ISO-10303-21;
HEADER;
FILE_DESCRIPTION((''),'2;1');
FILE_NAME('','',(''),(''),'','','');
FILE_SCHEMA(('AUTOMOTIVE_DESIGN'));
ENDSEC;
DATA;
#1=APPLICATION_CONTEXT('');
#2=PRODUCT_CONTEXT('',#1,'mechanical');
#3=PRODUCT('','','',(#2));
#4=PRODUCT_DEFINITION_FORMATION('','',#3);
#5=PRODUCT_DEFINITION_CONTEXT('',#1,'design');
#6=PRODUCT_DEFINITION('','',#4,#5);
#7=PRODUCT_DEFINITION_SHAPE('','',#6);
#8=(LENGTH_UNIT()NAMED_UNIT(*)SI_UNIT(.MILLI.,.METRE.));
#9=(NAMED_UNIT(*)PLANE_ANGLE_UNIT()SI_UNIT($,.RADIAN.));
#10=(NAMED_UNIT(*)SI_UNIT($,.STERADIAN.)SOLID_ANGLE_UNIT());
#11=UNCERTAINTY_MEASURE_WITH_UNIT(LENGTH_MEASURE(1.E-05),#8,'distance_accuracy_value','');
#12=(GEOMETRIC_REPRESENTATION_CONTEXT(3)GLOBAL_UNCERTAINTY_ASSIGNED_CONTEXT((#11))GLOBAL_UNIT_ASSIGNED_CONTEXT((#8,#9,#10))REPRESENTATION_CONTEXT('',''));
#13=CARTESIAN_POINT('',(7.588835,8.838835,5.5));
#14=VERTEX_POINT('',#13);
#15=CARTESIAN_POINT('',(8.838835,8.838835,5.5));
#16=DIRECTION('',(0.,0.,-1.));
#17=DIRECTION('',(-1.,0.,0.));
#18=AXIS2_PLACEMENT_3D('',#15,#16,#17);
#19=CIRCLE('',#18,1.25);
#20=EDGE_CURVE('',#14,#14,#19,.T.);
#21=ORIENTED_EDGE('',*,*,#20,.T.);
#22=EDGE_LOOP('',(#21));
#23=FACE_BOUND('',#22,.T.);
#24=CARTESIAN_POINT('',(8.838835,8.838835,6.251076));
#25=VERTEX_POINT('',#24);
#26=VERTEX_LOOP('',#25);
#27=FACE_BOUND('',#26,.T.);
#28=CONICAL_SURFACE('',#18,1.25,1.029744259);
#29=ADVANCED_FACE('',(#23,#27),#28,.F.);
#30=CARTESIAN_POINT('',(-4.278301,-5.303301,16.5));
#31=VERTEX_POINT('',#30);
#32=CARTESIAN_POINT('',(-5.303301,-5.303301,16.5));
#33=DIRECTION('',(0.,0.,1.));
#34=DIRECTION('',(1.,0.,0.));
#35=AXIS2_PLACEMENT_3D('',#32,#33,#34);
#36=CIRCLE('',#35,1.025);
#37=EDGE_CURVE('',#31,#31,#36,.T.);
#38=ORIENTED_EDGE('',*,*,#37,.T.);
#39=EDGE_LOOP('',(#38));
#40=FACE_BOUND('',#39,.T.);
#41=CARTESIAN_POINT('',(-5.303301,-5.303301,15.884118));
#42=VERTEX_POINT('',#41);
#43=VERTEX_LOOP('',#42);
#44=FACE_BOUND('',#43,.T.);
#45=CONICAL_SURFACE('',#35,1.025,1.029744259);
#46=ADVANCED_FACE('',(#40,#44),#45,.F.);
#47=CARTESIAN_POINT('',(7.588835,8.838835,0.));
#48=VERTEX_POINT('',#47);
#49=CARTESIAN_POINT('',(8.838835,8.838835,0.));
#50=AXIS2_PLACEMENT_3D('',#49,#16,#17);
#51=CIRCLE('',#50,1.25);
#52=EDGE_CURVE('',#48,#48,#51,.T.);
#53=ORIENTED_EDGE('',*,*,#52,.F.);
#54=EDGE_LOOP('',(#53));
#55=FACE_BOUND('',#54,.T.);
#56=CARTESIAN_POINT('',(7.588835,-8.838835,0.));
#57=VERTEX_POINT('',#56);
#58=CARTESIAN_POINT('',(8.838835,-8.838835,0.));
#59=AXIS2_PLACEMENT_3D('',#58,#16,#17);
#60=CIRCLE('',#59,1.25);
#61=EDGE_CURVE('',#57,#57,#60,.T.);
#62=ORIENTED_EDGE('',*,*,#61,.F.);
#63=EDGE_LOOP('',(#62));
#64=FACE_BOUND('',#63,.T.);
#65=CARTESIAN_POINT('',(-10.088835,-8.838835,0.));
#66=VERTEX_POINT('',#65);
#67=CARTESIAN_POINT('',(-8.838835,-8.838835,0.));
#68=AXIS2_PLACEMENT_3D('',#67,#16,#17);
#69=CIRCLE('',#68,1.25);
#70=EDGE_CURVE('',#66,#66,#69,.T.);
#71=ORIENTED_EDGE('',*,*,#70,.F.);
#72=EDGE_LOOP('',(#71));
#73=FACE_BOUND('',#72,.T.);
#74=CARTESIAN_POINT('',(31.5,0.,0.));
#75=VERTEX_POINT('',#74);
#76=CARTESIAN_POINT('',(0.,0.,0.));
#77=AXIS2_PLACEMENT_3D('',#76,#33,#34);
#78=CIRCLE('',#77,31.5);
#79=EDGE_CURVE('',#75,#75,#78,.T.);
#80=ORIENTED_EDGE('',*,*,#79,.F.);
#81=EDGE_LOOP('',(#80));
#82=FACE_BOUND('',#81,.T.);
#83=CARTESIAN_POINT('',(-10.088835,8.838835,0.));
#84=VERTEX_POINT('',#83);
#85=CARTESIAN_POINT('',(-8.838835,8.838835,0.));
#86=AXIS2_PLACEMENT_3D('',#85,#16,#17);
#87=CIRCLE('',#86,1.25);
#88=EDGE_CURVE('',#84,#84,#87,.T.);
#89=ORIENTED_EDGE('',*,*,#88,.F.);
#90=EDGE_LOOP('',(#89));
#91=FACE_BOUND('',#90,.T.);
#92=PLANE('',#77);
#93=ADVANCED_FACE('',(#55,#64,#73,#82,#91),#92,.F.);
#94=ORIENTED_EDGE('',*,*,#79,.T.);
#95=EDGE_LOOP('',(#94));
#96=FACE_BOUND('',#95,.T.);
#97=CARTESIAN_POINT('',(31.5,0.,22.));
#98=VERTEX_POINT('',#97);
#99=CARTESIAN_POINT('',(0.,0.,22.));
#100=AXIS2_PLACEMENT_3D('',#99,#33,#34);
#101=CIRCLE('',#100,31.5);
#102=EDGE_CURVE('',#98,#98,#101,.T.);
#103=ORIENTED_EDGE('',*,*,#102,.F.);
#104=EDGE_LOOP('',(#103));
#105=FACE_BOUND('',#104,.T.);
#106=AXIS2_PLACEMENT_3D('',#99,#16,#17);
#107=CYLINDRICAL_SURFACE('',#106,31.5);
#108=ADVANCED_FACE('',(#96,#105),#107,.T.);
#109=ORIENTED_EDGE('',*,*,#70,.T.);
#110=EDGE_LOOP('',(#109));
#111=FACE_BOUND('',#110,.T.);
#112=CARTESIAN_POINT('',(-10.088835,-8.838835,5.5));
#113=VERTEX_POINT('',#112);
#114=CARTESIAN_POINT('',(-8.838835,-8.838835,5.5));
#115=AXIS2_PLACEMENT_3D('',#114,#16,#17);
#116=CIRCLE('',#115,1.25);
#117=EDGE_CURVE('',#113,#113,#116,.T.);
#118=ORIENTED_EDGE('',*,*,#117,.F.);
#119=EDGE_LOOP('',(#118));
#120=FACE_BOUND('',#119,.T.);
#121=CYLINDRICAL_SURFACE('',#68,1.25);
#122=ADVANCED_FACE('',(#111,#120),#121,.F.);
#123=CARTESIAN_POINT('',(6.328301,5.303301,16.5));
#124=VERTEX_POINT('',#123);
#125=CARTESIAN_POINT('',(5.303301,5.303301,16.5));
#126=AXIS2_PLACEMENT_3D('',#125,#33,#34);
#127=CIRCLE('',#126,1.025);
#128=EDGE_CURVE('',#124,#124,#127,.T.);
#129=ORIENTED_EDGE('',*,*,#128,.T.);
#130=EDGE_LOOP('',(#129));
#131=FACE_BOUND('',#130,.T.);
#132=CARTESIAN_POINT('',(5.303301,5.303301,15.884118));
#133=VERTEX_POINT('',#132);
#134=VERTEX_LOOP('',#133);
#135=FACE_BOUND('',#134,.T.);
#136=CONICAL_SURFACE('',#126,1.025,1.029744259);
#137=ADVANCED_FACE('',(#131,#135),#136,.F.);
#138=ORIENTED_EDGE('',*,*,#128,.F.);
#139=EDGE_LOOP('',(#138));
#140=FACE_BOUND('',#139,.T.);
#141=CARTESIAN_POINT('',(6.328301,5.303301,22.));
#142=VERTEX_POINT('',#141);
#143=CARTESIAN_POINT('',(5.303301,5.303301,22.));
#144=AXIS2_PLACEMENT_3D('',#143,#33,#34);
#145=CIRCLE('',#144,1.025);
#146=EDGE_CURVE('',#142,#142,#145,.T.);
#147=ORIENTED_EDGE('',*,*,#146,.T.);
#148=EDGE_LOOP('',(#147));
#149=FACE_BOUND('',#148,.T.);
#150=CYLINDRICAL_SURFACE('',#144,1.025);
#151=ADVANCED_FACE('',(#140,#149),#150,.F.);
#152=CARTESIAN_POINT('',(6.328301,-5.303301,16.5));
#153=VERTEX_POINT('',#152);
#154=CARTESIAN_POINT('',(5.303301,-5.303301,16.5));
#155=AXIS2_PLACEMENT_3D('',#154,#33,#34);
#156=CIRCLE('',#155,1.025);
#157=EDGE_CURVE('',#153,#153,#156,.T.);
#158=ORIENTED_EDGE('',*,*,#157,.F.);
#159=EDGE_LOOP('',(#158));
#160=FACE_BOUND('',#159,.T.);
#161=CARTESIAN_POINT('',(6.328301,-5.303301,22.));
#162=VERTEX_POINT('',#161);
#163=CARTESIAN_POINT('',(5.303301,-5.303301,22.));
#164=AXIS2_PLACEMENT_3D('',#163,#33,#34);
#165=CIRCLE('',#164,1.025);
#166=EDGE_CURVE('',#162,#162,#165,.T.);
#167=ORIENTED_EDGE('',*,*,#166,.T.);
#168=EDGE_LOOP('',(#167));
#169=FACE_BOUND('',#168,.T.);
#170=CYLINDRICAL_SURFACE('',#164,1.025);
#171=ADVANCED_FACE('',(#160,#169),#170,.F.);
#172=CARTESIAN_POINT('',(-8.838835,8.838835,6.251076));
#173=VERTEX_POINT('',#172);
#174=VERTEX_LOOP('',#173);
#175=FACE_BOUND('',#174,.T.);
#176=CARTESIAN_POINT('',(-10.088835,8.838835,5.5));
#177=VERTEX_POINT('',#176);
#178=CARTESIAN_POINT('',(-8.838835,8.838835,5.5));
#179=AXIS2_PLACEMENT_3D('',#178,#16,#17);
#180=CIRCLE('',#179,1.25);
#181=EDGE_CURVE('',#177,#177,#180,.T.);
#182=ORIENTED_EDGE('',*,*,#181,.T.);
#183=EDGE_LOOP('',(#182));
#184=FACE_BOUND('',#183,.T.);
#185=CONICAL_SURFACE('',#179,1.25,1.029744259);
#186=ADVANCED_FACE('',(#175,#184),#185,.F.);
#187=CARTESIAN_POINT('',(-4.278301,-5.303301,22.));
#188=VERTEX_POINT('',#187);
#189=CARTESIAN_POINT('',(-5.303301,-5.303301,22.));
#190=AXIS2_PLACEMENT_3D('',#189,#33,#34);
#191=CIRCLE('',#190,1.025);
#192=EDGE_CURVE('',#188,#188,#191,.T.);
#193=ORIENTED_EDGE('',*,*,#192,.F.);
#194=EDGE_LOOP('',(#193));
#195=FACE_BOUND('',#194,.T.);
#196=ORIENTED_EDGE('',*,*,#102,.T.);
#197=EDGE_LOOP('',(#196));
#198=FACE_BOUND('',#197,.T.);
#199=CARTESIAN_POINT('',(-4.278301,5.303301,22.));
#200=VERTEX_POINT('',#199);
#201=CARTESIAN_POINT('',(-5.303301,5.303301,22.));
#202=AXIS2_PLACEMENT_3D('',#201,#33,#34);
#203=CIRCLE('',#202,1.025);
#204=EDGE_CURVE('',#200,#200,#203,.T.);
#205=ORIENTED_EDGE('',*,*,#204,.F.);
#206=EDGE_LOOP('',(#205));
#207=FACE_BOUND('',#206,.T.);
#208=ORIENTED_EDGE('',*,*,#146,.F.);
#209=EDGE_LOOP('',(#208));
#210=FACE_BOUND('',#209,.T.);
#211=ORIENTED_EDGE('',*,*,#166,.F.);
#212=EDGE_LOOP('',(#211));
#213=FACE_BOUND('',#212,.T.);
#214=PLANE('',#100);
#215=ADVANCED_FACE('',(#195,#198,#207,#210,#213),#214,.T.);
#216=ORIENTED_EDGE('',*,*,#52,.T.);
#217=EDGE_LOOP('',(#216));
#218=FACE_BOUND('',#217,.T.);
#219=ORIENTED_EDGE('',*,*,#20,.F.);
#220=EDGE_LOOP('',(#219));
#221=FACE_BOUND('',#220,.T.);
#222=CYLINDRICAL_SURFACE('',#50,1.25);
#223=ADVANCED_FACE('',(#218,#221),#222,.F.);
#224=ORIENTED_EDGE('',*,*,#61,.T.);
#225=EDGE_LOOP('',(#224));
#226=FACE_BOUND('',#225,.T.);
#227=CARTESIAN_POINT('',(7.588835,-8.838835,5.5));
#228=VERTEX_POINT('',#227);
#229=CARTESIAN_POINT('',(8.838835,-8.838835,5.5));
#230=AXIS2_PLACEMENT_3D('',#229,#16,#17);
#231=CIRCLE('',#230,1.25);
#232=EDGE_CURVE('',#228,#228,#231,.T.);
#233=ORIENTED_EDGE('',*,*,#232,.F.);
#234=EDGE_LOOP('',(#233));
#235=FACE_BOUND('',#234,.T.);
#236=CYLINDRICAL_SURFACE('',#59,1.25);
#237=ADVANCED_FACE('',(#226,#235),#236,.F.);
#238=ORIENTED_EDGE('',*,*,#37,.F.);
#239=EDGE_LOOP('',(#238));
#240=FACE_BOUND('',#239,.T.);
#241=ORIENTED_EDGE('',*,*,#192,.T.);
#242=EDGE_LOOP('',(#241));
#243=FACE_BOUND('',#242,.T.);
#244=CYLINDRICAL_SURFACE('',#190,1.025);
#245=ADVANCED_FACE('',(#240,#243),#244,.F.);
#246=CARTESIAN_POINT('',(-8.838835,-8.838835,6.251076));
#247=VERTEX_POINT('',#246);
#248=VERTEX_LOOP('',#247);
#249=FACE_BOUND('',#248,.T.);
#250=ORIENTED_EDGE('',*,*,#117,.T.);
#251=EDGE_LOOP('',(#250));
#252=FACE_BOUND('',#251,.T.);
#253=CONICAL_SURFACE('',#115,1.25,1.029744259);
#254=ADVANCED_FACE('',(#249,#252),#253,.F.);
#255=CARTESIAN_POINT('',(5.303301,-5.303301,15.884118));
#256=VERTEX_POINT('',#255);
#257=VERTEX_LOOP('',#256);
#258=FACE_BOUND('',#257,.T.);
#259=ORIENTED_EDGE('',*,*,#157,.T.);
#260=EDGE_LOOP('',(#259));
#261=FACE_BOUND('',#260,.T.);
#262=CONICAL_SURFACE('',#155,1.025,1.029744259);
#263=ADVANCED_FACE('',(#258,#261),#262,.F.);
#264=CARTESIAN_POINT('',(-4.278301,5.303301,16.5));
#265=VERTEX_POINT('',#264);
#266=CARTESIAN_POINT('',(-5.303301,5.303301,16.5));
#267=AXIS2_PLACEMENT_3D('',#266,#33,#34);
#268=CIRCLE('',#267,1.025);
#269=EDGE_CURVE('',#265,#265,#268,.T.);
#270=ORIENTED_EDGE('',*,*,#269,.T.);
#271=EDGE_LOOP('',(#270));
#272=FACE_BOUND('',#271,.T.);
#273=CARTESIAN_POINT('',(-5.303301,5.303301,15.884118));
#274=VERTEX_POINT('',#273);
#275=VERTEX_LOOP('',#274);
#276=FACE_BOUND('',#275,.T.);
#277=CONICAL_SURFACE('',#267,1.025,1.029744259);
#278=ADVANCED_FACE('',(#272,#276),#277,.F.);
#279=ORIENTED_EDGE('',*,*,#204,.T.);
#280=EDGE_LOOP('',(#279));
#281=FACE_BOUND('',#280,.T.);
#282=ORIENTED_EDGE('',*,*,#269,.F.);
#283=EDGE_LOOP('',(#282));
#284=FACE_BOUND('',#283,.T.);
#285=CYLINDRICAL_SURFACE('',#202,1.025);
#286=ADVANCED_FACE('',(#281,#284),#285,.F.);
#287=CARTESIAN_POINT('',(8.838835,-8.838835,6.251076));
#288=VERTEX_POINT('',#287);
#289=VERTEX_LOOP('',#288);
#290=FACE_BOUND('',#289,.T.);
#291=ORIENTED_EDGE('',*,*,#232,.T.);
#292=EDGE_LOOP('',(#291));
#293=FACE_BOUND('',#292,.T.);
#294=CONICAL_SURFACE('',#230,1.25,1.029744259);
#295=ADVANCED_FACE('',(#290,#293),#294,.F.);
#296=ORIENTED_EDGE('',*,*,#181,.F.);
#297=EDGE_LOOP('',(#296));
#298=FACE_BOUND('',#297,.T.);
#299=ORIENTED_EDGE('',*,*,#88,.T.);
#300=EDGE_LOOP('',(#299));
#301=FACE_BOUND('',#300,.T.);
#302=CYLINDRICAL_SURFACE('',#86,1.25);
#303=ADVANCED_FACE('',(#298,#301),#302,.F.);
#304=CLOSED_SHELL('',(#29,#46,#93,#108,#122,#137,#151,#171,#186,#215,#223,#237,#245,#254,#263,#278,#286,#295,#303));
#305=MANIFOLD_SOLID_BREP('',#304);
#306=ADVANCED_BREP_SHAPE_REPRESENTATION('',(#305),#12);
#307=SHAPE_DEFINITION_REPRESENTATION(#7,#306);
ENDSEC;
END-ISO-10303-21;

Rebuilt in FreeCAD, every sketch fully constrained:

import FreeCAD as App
import Part
import Sketcher
from FreeCAD import Vector
Q = App.Units.Quantity

doc = App.newDocument("Part")
body = doc.addObject("PartDesign::Body", "Body")

sketch1 = body.newObject("Sketcher::SketchObject", "Sketch")
sketch1.AttachmentSupport = (doc.getObject("XY_Plane"), [""])
sketch1.MapMode = "FlatFace"
sketch1.addGeometry(Part.Circle(Vector(0, 0, 0), Vector(0, 0, 1), 32), False)
sketch1.addConstraint([
    Sketcher.Constraint("Coincident", 0, 3, -1, 1),
    Sketcher.Constraint("Diameter", 0, Q("63 mm")),
])
pad1 = body.newObject("PartDesign::Pad", "Pad")
pad1.Profile = sketch1
pad1.Length = 22

sketch2 = body.newObject("Sketcher::SketchObject", "Sketch001")
sketch2.AttachmentSupport = (doc.getObject("XY_Plane"), [""])
sketch2.MapMode = "FlatFace"
sketch2.AttachmentOffset = App.Placement(Vector(0, 0, 22), App.Rotation())
sketch2.addGeometry([
    Part.Circle(Vector(-5.3, 5.3, 0), Vector(0, 0, 1), 1),
    Part.Circle(Vector(5.3, -5.3, 0), Vector(0, 0, 1), 1),
    Part.Circle(Vector(5.3, 5.3, 0), Vector(0, 0, 1), 1),
    Part.Circle(Vector(-5.3, -5.3, 0), Vector(0, 0, 1), 1),
], False)
sketch2.addConstraint([
    Sketcher.Constraint("Equal", 0, 1),
    Sketcher.Constraint("Equal", 1, 2),
    Sketcher.Constraint("Equal", 2, 3),
    Sketcher.Constraint("Symmetric", 0, 3, 1, 3, -1, 1),
    Sketcher.Constraint("Symmetric", 2, 3, 3, 3, -1, 1),
    Sketcher.Constraint("Symmetric", 0, 3, 2, 3, -2),
    Sketcher.Constraint("Diameter", 0, Q("2.05 mm")),
    Sketcher.Constraint("DistanceX", 0, 3, -1, 1, Q("5.303301 mm")),
    Sketcher.Constraint("DistanceY", -1, 1, 0, 3, Q("5.303301 mm")),
])
doc.recompute()
hole = body.newObject("PartDesign::Hole", "Hole")
hole.Profile = sketch2
hole.ThreadType = "None"
hole.Diameter = 2.05
hole.DepthType = "Dimension"
hole.Depth = 5.5
hole.DrillPoint = "Angled"
hole.DrillPointAngle = 118

sketch3 = body.newObject("Sketcher::SketchObject", "Sketch002")
sketch3.AttachmentSupport = (doc.getObject("XY_Plane"), [""])
sketch3.MapMode = "FlatFace"
sketch3.addGeometry([
    Part.Circle(Vector(-8.8, 8.8, 0), Vector(0, 0, 1), 1.2),
    Part.Circle(Vector(-8.8, -8.8, 0), Vector(0, 0, 1), 1.2),
    Part.Circle(Vector(8.8, 8.8, 0), Vector(0, 0, 1), 1.2),
    Part.Circle(Vector(8.8, -8.8, 0), Vector(0, 0, 1), 1.2),
], False)
sketch3.addConstraint([
    Sketcher.Constraint("Equal", 0, 1),
    Sketcher.Constraint("Equal", 1, 2),
    Sketcher.Constraint("Equal", 2, 3),
    Sketcher.Constraint("Symmetric", 1, 3, 2, 3, -1, 1),
    Sketcher.Constraint("Symmetric", 0, 3, 3, 3, -1, 1),
    Sketcher.Constraint("Symmetric", 0, 3, 2, 3, -2),
    Sketcher.Constraint("Diameter", 0, Q("2.5 mm")),
    Sketcher.Constraint("DistanceY", 1, 3, 0, 3, Q("17.67767 mm")),
    Sketcher.Constraint("DistanceX", 0, 3, 2, 3, Q("17.67767 mm")),
])
doc.recompute()
hole2 = body.newObject("PartDesign::Hole", "Hole001")
hole2.Profile = sketch3
hole2.ThreadType = "None"
hole2.Diameter = 2.5
hole2.DepthType = "Dimension"
hole2.Depth = 5.5
hole2.DrillPoint = "Angled"
hole2.DrillPointAngle = 118
hole2.Reversed = True

doc.recompute()
